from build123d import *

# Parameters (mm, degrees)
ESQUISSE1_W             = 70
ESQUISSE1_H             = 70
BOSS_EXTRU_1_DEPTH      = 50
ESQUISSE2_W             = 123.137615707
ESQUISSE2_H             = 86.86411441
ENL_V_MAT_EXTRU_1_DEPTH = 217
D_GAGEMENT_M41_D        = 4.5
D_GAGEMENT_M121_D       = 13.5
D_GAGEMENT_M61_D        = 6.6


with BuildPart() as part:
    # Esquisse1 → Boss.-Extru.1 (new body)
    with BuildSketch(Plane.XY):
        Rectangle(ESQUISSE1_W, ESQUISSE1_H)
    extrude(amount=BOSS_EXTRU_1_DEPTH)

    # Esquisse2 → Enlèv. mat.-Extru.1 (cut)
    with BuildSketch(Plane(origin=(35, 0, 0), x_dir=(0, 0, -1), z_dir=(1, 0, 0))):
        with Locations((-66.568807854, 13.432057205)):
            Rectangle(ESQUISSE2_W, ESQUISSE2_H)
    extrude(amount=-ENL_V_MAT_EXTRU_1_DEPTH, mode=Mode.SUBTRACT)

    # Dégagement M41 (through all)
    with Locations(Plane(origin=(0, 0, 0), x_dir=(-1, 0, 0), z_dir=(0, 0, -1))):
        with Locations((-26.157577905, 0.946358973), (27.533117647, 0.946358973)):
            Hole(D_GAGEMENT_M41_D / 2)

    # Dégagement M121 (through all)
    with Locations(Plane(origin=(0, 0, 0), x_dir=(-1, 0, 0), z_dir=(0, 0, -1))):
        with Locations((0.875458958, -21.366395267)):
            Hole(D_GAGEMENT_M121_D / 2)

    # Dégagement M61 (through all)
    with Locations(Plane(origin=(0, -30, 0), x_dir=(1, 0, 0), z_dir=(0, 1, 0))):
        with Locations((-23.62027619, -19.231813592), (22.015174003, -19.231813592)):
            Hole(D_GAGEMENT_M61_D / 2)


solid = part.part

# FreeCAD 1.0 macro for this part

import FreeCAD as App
import Part
import Sketcher
from FreeCAD import Vector

doc = App.newDocument("Part")
params = doc.addObject("Spreadsheet::Sheet", "Params")
for row, (alias, value) in enumerate([
    ("sketch1_width", "70 mm"),
    ("pad1_length", "50 mm"),
    ("pocket1_length", "217 mm"),
    ("sketch3_diameter", "4.5 mm"),
    ("hole_diameter", "4.5 mm"),
    ("sketch4_diameter", "13.5 mm"),
    ("hole2_diameter", "13.5 mm"),
    ("sketch5_diameter", "6.6 mm"),
    ("hole3_diameter", "6.6 mm"),
], start=1):
    params.set(f"A{row}", alias)
    params.set(f"B{row}", "=" + value)
    params.setAlias(f"B{row}", alias)

body = doc.addObject("PartDesign::Body", "Body")

sketch1 = body.newObject("Sketcher::SketchObject", "Sketch")
sketch1.AttachmentSupport = (doc.getObject("XY_Plane"), [""])
sketch1.MapMode = "FlatFace"
sketch1.addGeometry(Part.LineSegment(Vector(-35, 35, 0), Vector(-35, -35, 0)), False)
sketch1.addGeometry(Part.LineSegment(Vector(-35, -35, 0), Vector(35, -35, 0)), False)
sketch1.addGeometry(Part.LineSegment(Vector(35, -35, 0), Vector(35, 35, 0)), False)
sketch1.addGeometry(Part.LineSegment(Vector(35, 35, 0), Vector(-35, 35, 0)), False)
sketch1.addConstraint(Sketcher.Constraint("Coincident", 0, 2, 1, 1))
sketch1.addConstraint(Sketcher.Constraint("Coincident", 1, 2, 2, 1))
sketch1.addConstraint(Sketcher.Constraint("Coincident", 2, 2, 3, 1))
sketch1.addConstraint(Sketcher.Constraint("Coincident", 3, 2, 0, 1))
sketch1.addConstraint(Sketcher.Constraint("Vertical", 0))
sketch1.addConstraint(Sketcher.Constraint("Horizontal", 1))
sketch1.addConstraint(Sketcher.Constraint("Vertical", 2))
sketch1.addConstraint(Sketcher.Constraint("Horizontal", 3))
sketch1.addConstraint(Sketcher.Constraint("Symmetric", 0, 2, 2, 2, -1, 1))
sketch1.addConstraint(Sketcher.Constraint("Equal", 3, 0))
sketch1.addConstraint(Sketcher.Constraint("DistanceX", 1, 1, 1, 2, 70.0))
sketch1.setExpression("Constraints[10]", "Params.sketch1_width")
pad1 = body.newObject("PartDesign::Pad", "Pad")
pad1.Profile = sketch1
pad1.setExpression("Length", "Params.pad1_length")

sketch2 = body.newObject("Sketcher::SketchObject", "Sketch001")
sketch2.AttachmentSupport = (doc.getObject("YZ_Plane"), [""])
sketch2.MapMode = "FlatFace"
sketch2.AttachmentOffset = App.Placement(Vector(0, 0, 35), App.Rotation())
sketch2.addGeometry(Part.LineSegment(Vector(56.864114, 128.137616, 0), Vector(-30, 128.137616, 0)), False)
sketch2.addGeometry(Part.LineSegment(Vector(-30, 128.137616, 0), Vector(-30, 5, 0)), False)
sketch2.addGeometry(Part.LineSegment(Vector(-30, 5, 0), Vector(56.864114, 5, 0)), False)
sketch2.addGeometry(Part.LineSegment(Vector(56.864114, 5, 0), Vector(56.864114, 128.137616, 0)), False)
sketch2.addConstraint(Sketcher.Constraint("Coincident", 0, 2, 1, 1))
sketch2.addConstraint(Sketcher.Constraint("Coincident", 1, 2, 2, 1))
sketch2.addConstraint(Sketcher.Constraint("Coincident", 2, 2, 3, 1))
sketch2.addConstraint(Sketcher.Constraint("Coincident", 3, 2, 0, 1))
sketch2.addConstraint(Sketcher.Constraint("Horizontal", 0))
sketch2.addConstraint(Sketcher.Constraint("Vertical", 1))
sketch2.addConstraint(Sketcher.Constraint("Horizontal", 2))
sketch2.addConstraint(Sketcher.Constraint("Vertical", 3))
sketch2.addConstraint(Sketcher.Constraint("DistanceX", 0, 2, -1, 1, 30.0))
sketch2.addConstraint(Sketcher.Constraint("DistanceY", -1, 1, 1, 2, 5.0))
sketch2.addConstraint(Sketcher.Constraint("DistanceX", 0, 2, 0, 1, 86.864114))
sketch2.addConstraint(Sketcher.Constraint("DistanceY", 1, 2, 1, 1, 123.137616))
pocket1 = body.newObject("PartDesign::Pocket", "Pocket")
pocket1.Profile = sketch2
pocket1.setExpression("Length", "Params.pocket1_length")

sketch3 = body.newObject("Sketcher::SketchObject", "Sketch002")
sketch3.AttachmentSupport = (doc.getObject("XY_Plane"), [""])
sketch3.MapMode = "FlatFace"
sketch3.addGeometry(Part.Circle(Vector(26.157578, 0.946359, 0), Vector(0, 0, 1), 2.25), False)
sketch3.addGeometry(Part.Circle(Vector(-27.533118, 0.946359, 0), Vector(0, 0, 1), 2.25), False)
sketch3.addConstraint(Sketcher.Constraint("Equal", 0, 1))
sketch3.addConstraint(Sketcher.Constraint("Horizontal", 0, 3, 1, 3))
sketch3.addConstraint(Sketcher.Constraint("Diameter", 0, 4.5))
sketch3.addConstraint(Sketcher.Constraint("DistanceY", -1, 1, 0, 3, 0.946359))
sketch3.addConstraint(Sketcher.Constraint("DistanceX", -1, 1, 0, 3, 26.157578))
sketch3.addConstraint(Sketcher.Constraint("DistanceX", 1, 3, -1, 1, 27.533118))
sketch3.setExpression("Constraints[2]", "Params.sketch3_diameter")
doc.recompute()
hole = body.newObject("PartDesign::Hole", "Hole")
hole.Profile = sketch3
hole.ThreadType = "None"
hole.setExpression("Diameter", "Params.hole_diameter")
hole.DepthType = "ThroughAll"
hole.Reversed = True

sketch4 = body.newObject("Sketcher::SketchObject", "Sketch003")
sketch4.AttachmentSupport = (doc.getObject("XY_Plane"), [""])
sketch4.MapMode = "FlatFace"
sketch4.addGeometry(Part.Circle(Vector(-0.875459, -21.366395, 0), Vector(0, 0, 1), 6.75), False)
sketch4.addConstraint(Sketcher.Constraint("Diameter", 0, 13.5))
sketch4.addConstraint(Sketcher.Constraint("DistanceX", 0, 3, -1, 1, 0.875459))
sketch4.addConstraint(Sketcher.Constraint("DistanceY", 0, 3, -1, 1, 21.366395))
sketch4.setExpression("Constraints[0]", "Params.sketch4_diameter")
doc.recompute()
hole2 = body.newObject("PartDesign::Hole", "Hole001")
hole2.Profile = sketch4
hole2.ThreadType = "None"
hole2.setExpression("Diameter", "Params.hole2_diameter")
hole2.DepthType = "ThroughAll"
hole2.Reversed = True

sketch5 = body.newObject("Sketcher::SketchObject", "Sketch004")
sketch5.AttachmentSupport = (doc.getObject("XZ_Plane"), [""])
sketch5.MapMode = "FlatFace"
sketch5.AttachmentOffset = App.Placement(Vector(0, 0, 30), App.Rotation())
sketch5.addGeometry(Part.Circle(Vector(-23.620276, 19.231814, 0), Vector(0, 0, 1), 3.3), False)
sketch5.addGeometry(Part.Circle(Vector(22.015174, 19.231814, 0), Vector(0, 0, 1), 3.3), False)
sketch5.addConstraint(Sketcher.Constraint("Equal", 0, 1))
sketch5.addConstraint(Sketcher.Constraint("Horizontal", 0, 3, 1, 3))
sketch5.addConstraint(Sketcher.Constraint("Diameter", 0, 6.6))
sketch5.addConstraint(Sketcher.Constraint("DistanceX", 0, 3, 1, 3, 45.63545))
sketch5.addConstraint(Sketcher.Constraint("DistanceX", 0, 3, -1, 1, 23.620276))
sketch5.addConstraint(Sketcher.Constraint("DistanceY", -1, 1, 0, 3, 19.231814))
sketch5.setExpression("Constraints[2]", "Params.sketch5_diameter")
doc.recompute()
hole3 = body.newObject("PartDesign::Hole", "Hole002")
hole3.Profile = sketch5
hole3.ThreadType = "None"
hole3.setExpression("Diameter", "Params.hole3_diameter")
hole3.DepthType = "ThroughAll"
hole3.Reversed = True

doc.recompute()
